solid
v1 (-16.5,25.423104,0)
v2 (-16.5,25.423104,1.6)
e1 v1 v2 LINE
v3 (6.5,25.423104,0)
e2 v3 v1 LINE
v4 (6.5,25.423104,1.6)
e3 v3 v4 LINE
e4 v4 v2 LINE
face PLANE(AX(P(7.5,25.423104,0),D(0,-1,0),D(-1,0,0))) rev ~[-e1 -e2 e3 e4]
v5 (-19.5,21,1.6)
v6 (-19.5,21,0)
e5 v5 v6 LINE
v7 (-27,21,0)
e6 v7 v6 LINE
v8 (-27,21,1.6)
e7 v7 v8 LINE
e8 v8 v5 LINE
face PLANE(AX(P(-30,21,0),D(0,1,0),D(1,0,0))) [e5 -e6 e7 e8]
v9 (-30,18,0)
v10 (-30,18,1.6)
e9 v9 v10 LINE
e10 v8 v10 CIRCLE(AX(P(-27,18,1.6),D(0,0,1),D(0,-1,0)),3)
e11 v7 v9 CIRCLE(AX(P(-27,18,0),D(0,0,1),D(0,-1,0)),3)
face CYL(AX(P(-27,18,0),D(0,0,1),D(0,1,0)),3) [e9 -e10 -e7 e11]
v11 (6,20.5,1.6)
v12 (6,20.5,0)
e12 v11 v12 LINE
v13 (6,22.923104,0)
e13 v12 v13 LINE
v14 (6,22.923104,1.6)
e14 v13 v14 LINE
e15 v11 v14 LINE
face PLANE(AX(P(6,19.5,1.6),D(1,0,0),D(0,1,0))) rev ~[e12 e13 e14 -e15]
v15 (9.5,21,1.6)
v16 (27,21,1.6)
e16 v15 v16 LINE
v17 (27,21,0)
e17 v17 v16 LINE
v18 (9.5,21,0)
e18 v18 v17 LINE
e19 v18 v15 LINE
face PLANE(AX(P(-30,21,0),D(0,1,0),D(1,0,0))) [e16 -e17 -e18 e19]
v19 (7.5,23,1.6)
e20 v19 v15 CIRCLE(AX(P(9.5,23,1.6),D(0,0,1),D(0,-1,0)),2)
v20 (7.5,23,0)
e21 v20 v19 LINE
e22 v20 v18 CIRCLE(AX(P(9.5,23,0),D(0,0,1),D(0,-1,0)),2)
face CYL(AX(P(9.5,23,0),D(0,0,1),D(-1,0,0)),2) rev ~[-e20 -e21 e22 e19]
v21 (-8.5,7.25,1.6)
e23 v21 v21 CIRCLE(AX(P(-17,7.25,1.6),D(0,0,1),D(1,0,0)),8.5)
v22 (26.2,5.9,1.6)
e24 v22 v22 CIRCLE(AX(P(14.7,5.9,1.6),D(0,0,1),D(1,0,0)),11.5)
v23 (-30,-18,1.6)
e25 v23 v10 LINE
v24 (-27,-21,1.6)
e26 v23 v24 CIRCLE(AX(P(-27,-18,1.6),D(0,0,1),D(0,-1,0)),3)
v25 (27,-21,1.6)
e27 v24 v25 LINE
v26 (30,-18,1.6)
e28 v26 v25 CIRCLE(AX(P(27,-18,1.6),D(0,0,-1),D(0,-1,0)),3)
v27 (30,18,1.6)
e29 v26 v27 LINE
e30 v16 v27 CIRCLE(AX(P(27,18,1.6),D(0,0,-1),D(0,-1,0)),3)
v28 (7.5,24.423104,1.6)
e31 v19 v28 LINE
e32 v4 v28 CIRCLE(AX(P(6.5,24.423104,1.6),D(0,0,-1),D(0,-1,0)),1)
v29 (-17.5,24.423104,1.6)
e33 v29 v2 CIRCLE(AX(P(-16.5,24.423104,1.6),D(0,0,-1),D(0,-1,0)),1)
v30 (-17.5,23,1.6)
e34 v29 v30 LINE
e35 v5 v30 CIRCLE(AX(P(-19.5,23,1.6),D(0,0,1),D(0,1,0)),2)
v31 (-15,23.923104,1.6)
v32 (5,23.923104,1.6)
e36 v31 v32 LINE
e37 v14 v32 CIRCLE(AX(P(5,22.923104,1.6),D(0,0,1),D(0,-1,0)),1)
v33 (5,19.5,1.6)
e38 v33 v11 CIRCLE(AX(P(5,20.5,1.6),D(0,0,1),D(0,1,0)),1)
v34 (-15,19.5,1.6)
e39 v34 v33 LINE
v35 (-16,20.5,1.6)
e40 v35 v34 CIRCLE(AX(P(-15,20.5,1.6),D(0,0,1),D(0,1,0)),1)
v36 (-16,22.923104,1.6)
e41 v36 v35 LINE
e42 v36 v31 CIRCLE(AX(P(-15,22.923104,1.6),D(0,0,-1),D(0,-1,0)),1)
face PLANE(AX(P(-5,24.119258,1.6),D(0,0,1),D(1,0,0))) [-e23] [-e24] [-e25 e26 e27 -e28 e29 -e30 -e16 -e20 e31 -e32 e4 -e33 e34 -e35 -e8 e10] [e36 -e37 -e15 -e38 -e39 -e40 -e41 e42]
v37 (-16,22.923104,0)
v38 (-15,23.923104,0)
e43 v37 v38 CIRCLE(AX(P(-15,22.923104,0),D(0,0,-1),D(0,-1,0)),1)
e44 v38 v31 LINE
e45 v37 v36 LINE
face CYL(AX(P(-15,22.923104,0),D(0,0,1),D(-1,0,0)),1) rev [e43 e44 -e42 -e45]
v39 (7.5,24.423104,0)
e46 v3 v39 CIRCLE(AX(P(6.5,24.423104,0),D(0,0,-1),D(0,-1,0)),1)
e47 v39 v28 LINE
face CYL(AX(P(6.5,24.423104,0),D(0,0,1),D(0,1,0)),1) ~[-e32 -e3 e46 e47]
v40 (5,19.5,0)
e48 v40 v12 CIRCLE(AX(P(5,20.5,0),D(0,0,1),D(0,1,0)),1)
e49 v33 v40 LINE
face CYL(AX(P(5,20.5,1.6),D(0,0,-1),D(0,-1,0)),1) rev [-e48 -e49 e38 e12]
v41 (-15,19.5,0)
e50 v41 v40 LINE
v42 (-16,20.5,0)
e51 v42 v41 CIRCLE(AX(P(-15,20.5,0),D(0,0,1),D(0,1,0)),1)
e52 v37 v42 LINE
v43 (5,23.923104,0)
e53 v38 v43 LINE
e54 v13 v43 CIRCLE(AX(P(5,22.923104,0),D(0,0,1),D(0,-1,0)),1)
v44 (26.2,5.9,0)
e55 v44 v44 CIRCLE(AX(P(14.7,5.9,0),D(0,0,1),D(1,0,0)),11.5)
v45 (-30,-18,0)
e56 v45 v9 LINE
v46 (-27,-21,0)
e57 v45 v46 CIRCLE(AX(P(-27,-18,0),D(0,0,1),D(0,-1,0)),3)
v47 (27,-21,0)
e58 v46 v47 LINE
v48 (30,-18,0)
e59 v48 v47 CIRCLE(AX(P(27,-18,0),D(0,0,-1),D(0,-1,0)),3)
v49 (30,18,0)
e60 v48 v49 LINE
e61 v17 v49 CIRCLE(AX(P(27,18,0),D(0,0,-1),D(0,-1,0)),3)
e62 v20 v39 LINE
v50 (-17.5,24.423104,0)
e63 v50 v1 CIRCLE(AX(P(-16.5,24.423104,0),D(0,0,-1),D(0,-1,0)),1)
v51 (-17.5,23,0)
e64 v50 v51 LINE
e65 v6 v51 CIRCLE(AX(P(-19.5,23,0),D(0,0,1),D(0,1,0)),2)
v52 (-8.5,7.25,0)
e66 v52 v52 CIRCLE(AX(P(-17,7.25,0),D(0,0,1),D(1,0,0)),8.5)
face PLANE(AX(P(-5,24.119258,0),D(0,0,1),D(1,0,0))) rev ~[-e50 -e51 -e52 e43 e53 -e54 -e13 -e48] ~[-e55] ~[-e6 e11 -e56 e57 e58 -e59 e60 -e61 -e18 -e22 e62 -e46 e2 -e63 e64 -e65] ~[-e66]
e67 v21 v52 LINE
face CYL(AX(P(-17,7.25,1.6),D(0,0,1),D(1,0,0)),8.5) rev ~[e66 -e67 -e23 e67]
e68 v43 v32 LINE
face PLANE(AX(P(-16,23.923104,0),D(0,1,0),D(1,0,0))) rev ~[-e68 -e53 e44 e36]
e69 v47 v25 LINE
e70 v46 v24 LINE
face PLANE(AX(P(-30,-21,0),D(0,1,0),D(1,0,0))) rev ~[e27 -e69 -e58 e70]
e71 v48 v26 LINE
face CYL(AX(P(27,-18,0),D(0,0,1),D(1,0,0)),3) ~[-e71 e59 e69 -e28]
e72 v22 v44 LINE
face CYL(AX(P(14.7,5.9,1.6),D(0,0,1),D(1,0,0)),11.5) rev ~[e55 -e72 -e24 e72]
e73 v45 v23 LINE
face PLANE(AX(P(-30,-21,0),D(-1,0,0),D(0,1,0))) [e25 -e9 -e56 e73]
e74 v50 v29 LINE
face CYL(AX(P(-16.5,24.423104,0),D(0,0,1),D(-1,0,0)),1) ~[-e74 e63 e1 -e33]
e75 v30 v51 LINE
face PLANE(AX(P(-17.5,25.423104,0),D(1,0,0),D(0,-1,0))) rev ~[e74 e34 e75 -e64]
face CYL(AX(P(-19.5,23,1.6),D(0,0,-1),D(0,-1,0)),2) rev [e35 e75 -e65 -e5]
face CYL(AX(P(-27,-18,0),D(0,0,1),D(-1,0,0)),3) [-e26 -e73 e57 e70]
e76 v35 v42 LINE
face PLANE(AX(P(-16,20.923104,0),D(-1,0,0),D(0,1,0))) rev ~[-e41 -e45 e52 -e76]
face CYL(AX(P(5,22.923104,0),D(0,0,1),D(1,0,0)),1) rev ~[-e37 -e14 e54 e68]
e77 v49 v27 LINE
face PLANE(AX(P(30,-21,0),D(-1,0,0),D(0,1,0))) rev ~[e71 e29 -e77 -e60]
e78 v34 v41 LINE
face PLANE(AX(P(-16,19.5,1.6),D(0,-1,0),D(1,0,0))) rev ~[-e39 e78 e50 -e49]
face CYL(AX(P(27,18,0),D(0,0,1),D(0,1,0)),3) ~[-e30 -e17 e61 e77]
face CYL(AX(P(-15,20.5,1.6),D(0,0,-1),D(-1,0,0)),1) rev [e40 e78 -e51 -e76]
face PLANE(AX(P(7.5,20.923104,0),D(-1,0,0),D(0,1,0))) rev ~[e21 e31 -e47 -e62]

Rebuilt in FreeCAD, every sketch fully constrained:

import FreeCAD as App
import Part
import Sketcher
from FreeCAD import Vector


def edges_at(feature, points):
    """Names of the edges that pass closest to the given points."""
    edges = feature.Shape.Edges
    near = lambda p: min(range(len(edges)), key=lambda i: edges[i].distToShape(Part.Vertex(*p))[0])
    return sorted({f"Edge{near(p) + 1}" for p in points})

doc = App.newDocument("Part")
params = doc.addObject("Spreadsheet::Sheet", "Params")
for row, (alias, value) in enumerate([
    ("sketch1_width", "60 mm"),
    ("sketch1_height", "42 mm"),
    ("pad1_length", "1.6 mm"),
    ("sketch2_diameter", "23 mm"),
    ("sketch2_diameter2", "17 mm"),
    ("sketch3_width", "22 mm"),
    ("sketch3_width2", "25 mm"),
    ("sketch3_height", "3 mm"),
    ("sketch3_height2", "4.5 mm"),
    ("pad2_length", "1.6 mm"),
    ("fillet_radius", "3 mm"),
    ("fillet2_radius", "2 mm"),
    ("sketch4_width", "22 mm"),
    ("sketch4_height", "1.5 mm"),
    ("fillet3_radius", "1 mm"),
], start=1):
    params.set(f"A{row}", alias)
    params.set(f"B{row}", "=" + value)
    params.setAlias(f"B{row}", alias)

body = doc.addObject("PartDesign::Body", "Body")

sketch1 = body.newObject("Sketcher::SketchObject", "Sketch")
sketch1.AttachmentSupport = (doc.getObject("XY_Plane"), [""])
sketch1.MapMode = "FlatFace"
sketch1.addGeometry([
    Part.LineSegment(Vector(-30, 21, 0), Vector(-30, -21, 0)),
    Part.LineSegment(Vector(-30, -21, 0), Vector(30, -21, 0)),
    Part.LineSegment(Vector(30, -21, 0), Vector(30, 21, 0)),
    Part.LineSegment(Vector(30, 21, 0), Vector(-30, 21, 0)),
], False)
sketch1.addConstraint([
    Sketcher.Constraint("Coincident", 0, 2, 1, 1),
    Sketcher.Constraint("Coincident", 1, 2, 2, 1),
    Sketcher.Constraint("Coincident", 2, 2, 3, 1),
    Sketcher.Constraint("Coincident", 3, 2, 0, 1),
    Sketcher.Constraint("Vertical", 0),
    Sketcher.Constraint("Horizontal", 1),
    Sketcher.Constraint("Vertical", 2),
    Sketcher.Constraint("Horizontal", 3),
    Sketcher.Constraint("Symmetric", 0, 2, 2, 2, -1, 1),
    Sketcher.Constraint("DistanceX", 1, 1, 1, 2, 60.0),
    Sketcher.Constraint("DistanceY", 0, 2, 0, 1, 42.0),
])
sketch1.setExpression("Constraints[9]", "Params.sketch1_width")
sketch1.setExpression("Constraints[10]", "Params.sketch1_height")
pad1 = body.newObject("PartDesign::Pad", "Pad")
pad1.Profile = sketch1
pad1.setExpression("Length", "Params.pad1_length")

sketch2 = body.newObject("Sketcher::SketchObject", "Sketch001")
sketch2.AttachmentSupport = (doc.getObject("XY_Plane"), [""])
sketch2.MapMode = "FlatFace"
sketch2.AttachmentOffset = App.Placement(Vector(0, 0, 1.6), App.Rotation())
sketch2.addGeometry([
    Part.Circle(Vector(15, 6, 0), Vector(0, 0, 1), 12),
    Part.Circle(Vector(-17, 7, 0), Vector(0, 0, 1), 8),
], False)
sketch2.addConstraint([
    Sketcher.Constraint("Diameter", 0, 23.0),
    Sketcher.Constraint("Diameter", 1, 17.0),
    Sketcher.Constraint("DistanceX", 1, 3, -1, 1, 17.0),
    Sketcher.Constraint("DistanceX", -1, 1, 0, 3, 14.7),
    Sketcher.Constraint("DistanceY", -1, 1, 0, 3, 5.9),
    Sketcher.Constraint("DistanceY", -1, 1, 1, 3, 7.25),
])
sketch2.setExpression("Constraints[0]", "Params.sketch2_diameter")
sketch2.setExpression("Constraints[1]", "Params.sketch2_diameter2")
pocket1 = body.newObject("PartDesign::Pocket", "Pocket")
pocket1.Profile = sketch2
pocket1.Type = "ThroughAll"

sketch3 = body.newObject("Sketcher::SketchObject", "Sketch002")
sketch3.AttachmentSupport = (doc.getObject("XY_Plane"), [""])
sketch3.MapMode = "FlatFace"
sketch3.addGeometry([
    Part.LineSegment(Vector(-17.5, 25.4, 0), Vector(-17.5, 20.9, 0)),
    Part.LineSegment(Vector(-17.5, 20.9, 0), Vector(-16, 20.9, 0)),
    Part.LineSegment(Vector(-16, 20.9, 0), Vector(-16, 23.9, 0)),
    Part.LineSegment(Vector(-16, 23.9, 0), Vector(6, 23.9, 0)),
    Part.LineSegment(Vector(6, 23.9, 0), Vector(6, 20.9, 0)),
    Part.LineSegment(Vector(6, 20.9, 0), Vector(7.5, 20.9, 0)),
    Part.LineSegment(Vector(7.5, 20.9, 0), Vector(7.5, 25.4, 0)),
    Part.LineSegment(Vector(7.5, 25.4, 0), Vector(-17.5, 25.4, 0)),
], False)
sketch3.addConstraint([
    Sketcher.Constraint("Coincident", 0, 2, 1, 1),
    Sketcher.Constraint("Coincident", 1, 2, 2, 1),
    Sketcher.Constraint("Coincident", 2, 2, 3, 1),
    Sketcher.Constraint("Coincident", 3, 2, 4, 1),
    Sketcher.Constraint("Coincident", 4, 2, 5, 1),
    Sketcher.Constraint("Coincident", 5, 2, 6, 1),
    Sketcher.Constraint("Coincident", 6, 2, 7, 1),
    Sketcher.Constraint("Coincident", 7, 2, 0, 1),
    Sketcher.Constraint("Vertical", 0),
    Sketcher.Constraint("Horizontal", 1),
    Sketcher.Constraint("Vertical", 2),
    Sketcher.Constraint("Horizontal", 3),
    Sketcher.Constraint("Vertical", 4),
    Sketcher.Constraint("Horizontal", 5),
    Sketcher.Constraint("Vertical", 6),
    Sketcher.Constraint("Horizontal", 7),
    Sketcher.Constraint("Horizontal", 1, 2, 4, 2),
    Sketcher.Constraint("Equal", 1, 5),
    Sketcher.Constraint("DistanceX", 3, 1, 3, 2, 22.0),
    Sketcher.Constraint("DistanceX", 7, 2, 7, 1, 25.0),
    Sketcher.Constraint("DistanceY", 2, 1, 2, 2, 3.0),
    Sketcher.Constraint("DistanceY", 0, 2, 0, 1, 4.5),
    Sketcher.Constraint("DistanceX", 1, 2, -1, 1, 16.0),
    Sketcher.Constraint("DistanceY", -1, 1, 0, 2, 20.923104),
])
sketch3.setExpression("Constraints[18]", "Params.sketch3_width")
sketch3.setExpression("Constraints[19]", "Params.sketch3_width2")
sketch3.setExpression("Constraints[20]", "Params.sketch3_height")
sketch3.setExpression("Constraints[21]", "Params.sketch3_height2")
pad2 = body.newObject("PartDesign::Pad", "Pad001")
pad2.Profile = sketch3
pad2.setExpression("Length", "Params.pad2_length")
doc.recompute()

fillet = body.newObject("PartDesign::Fillet", "Fillet")
fillet.Base = (pad2, edges_at(pad2, [
    (-30, 21, 0.8),
    (-30, -21, 0.8),
    (30, 21, 0.8),
    (30, -21, 0.8),
]))
fillet.setExpression("Radius", "Params.fillet_radius")
doc.recompute()

fillet2 = body.newObject("PartDesign::Fillet", "Fillet001")
fillet2.Base = (fillet, edges_at(fillet, [(-17.5, 21, 0.8), (7.5, 21, 0.8)]))
fillet2.setExpression("Radius", "Params.fillet2_radius")

sketch4 = body.newObject("Sketcher::SketchObject", "Sketch003")
sketch4.AttachmentSupport = (doc.getObject("XY_Plane"), [""])
sketch4.MapMode = "FlatFace"
sketch4.AttachmentOffset = App.Placement(Vector(0, 0, 1.6), App.Rotation())
sketch4.addGeometry([
    Part.LineSegment(Vector(-16, 21, 0), Vector(-16, 19.5, 0)),
    Part.LineSegment(Vector(-16, 19.5, 0), Vector(6, 19.5, 0)),
    Part.LineSegment(Vector(6, 19.5, 0), Vector(6, 21, 0)),
    Part.LineSegment(Vector(6, 21, 0), Vector(-16, 21, 0)),
], False)
sketch4.addConstraint([
    Sketcher.Constraint("Coincident", 0, 2, 1, 1),
    Sketcher.Constraint("Coincident", 1, 2, 2, 1),
    Sketcher.Constraint("Coincident", 2, 2, 3, 1),
    Sketcher.Constraint("Coincident", 3, 2, 0, 1),
    Sketcher.Constraint("Vertical", 0),
    Sketcher.Constraint("Horizontal", 1),
    Sketcher.Constraint("Vertical", 2),
    Sketcher.Constraint("Horizontal", 3),
    Sketcher.Constraint("DistanceX", 1, 1, 1, 2, 22.0),
    Sketcher.Constraint("DistanceY", 0, 2, 0, 1, 1.5),
    Sketcher.Constraint("DistanceX", 0, 2, -1, 1, 16.0),
    Sketcher.Constraint("DistanceY", -1, 1, 2, 2, 21.0),
])
sketch4.setExpression("Constraints[8]", "Params.sketch4_width")
sketch4.setExpression("Constraints[9]", "Params.sketch4_height")
pocket2 = body.newObject("PartDesign::Pocket", "Pocket001")
pocket2.Profile = sketch4
pocket2.Type = "ThroughAll"
doc.recompute()

fillet3 = body.newObject("PartDesign::Fillet", "Fillet002")
fillet3.Base = (pocket2, edges_at(pocket2, [
    (-16, 23.923, 0.8),
    (6, 23.923, 0.8),
    (7.5, 25.423, 0.8),
    (-17.5, 25.423, 0.8),
    (-16, 19.5, 0.8),
    (6, 19.5, 0.8),
]))
fillet3.setExpression("Radius", "Params.fillet3_radius")

doc.recompute()
